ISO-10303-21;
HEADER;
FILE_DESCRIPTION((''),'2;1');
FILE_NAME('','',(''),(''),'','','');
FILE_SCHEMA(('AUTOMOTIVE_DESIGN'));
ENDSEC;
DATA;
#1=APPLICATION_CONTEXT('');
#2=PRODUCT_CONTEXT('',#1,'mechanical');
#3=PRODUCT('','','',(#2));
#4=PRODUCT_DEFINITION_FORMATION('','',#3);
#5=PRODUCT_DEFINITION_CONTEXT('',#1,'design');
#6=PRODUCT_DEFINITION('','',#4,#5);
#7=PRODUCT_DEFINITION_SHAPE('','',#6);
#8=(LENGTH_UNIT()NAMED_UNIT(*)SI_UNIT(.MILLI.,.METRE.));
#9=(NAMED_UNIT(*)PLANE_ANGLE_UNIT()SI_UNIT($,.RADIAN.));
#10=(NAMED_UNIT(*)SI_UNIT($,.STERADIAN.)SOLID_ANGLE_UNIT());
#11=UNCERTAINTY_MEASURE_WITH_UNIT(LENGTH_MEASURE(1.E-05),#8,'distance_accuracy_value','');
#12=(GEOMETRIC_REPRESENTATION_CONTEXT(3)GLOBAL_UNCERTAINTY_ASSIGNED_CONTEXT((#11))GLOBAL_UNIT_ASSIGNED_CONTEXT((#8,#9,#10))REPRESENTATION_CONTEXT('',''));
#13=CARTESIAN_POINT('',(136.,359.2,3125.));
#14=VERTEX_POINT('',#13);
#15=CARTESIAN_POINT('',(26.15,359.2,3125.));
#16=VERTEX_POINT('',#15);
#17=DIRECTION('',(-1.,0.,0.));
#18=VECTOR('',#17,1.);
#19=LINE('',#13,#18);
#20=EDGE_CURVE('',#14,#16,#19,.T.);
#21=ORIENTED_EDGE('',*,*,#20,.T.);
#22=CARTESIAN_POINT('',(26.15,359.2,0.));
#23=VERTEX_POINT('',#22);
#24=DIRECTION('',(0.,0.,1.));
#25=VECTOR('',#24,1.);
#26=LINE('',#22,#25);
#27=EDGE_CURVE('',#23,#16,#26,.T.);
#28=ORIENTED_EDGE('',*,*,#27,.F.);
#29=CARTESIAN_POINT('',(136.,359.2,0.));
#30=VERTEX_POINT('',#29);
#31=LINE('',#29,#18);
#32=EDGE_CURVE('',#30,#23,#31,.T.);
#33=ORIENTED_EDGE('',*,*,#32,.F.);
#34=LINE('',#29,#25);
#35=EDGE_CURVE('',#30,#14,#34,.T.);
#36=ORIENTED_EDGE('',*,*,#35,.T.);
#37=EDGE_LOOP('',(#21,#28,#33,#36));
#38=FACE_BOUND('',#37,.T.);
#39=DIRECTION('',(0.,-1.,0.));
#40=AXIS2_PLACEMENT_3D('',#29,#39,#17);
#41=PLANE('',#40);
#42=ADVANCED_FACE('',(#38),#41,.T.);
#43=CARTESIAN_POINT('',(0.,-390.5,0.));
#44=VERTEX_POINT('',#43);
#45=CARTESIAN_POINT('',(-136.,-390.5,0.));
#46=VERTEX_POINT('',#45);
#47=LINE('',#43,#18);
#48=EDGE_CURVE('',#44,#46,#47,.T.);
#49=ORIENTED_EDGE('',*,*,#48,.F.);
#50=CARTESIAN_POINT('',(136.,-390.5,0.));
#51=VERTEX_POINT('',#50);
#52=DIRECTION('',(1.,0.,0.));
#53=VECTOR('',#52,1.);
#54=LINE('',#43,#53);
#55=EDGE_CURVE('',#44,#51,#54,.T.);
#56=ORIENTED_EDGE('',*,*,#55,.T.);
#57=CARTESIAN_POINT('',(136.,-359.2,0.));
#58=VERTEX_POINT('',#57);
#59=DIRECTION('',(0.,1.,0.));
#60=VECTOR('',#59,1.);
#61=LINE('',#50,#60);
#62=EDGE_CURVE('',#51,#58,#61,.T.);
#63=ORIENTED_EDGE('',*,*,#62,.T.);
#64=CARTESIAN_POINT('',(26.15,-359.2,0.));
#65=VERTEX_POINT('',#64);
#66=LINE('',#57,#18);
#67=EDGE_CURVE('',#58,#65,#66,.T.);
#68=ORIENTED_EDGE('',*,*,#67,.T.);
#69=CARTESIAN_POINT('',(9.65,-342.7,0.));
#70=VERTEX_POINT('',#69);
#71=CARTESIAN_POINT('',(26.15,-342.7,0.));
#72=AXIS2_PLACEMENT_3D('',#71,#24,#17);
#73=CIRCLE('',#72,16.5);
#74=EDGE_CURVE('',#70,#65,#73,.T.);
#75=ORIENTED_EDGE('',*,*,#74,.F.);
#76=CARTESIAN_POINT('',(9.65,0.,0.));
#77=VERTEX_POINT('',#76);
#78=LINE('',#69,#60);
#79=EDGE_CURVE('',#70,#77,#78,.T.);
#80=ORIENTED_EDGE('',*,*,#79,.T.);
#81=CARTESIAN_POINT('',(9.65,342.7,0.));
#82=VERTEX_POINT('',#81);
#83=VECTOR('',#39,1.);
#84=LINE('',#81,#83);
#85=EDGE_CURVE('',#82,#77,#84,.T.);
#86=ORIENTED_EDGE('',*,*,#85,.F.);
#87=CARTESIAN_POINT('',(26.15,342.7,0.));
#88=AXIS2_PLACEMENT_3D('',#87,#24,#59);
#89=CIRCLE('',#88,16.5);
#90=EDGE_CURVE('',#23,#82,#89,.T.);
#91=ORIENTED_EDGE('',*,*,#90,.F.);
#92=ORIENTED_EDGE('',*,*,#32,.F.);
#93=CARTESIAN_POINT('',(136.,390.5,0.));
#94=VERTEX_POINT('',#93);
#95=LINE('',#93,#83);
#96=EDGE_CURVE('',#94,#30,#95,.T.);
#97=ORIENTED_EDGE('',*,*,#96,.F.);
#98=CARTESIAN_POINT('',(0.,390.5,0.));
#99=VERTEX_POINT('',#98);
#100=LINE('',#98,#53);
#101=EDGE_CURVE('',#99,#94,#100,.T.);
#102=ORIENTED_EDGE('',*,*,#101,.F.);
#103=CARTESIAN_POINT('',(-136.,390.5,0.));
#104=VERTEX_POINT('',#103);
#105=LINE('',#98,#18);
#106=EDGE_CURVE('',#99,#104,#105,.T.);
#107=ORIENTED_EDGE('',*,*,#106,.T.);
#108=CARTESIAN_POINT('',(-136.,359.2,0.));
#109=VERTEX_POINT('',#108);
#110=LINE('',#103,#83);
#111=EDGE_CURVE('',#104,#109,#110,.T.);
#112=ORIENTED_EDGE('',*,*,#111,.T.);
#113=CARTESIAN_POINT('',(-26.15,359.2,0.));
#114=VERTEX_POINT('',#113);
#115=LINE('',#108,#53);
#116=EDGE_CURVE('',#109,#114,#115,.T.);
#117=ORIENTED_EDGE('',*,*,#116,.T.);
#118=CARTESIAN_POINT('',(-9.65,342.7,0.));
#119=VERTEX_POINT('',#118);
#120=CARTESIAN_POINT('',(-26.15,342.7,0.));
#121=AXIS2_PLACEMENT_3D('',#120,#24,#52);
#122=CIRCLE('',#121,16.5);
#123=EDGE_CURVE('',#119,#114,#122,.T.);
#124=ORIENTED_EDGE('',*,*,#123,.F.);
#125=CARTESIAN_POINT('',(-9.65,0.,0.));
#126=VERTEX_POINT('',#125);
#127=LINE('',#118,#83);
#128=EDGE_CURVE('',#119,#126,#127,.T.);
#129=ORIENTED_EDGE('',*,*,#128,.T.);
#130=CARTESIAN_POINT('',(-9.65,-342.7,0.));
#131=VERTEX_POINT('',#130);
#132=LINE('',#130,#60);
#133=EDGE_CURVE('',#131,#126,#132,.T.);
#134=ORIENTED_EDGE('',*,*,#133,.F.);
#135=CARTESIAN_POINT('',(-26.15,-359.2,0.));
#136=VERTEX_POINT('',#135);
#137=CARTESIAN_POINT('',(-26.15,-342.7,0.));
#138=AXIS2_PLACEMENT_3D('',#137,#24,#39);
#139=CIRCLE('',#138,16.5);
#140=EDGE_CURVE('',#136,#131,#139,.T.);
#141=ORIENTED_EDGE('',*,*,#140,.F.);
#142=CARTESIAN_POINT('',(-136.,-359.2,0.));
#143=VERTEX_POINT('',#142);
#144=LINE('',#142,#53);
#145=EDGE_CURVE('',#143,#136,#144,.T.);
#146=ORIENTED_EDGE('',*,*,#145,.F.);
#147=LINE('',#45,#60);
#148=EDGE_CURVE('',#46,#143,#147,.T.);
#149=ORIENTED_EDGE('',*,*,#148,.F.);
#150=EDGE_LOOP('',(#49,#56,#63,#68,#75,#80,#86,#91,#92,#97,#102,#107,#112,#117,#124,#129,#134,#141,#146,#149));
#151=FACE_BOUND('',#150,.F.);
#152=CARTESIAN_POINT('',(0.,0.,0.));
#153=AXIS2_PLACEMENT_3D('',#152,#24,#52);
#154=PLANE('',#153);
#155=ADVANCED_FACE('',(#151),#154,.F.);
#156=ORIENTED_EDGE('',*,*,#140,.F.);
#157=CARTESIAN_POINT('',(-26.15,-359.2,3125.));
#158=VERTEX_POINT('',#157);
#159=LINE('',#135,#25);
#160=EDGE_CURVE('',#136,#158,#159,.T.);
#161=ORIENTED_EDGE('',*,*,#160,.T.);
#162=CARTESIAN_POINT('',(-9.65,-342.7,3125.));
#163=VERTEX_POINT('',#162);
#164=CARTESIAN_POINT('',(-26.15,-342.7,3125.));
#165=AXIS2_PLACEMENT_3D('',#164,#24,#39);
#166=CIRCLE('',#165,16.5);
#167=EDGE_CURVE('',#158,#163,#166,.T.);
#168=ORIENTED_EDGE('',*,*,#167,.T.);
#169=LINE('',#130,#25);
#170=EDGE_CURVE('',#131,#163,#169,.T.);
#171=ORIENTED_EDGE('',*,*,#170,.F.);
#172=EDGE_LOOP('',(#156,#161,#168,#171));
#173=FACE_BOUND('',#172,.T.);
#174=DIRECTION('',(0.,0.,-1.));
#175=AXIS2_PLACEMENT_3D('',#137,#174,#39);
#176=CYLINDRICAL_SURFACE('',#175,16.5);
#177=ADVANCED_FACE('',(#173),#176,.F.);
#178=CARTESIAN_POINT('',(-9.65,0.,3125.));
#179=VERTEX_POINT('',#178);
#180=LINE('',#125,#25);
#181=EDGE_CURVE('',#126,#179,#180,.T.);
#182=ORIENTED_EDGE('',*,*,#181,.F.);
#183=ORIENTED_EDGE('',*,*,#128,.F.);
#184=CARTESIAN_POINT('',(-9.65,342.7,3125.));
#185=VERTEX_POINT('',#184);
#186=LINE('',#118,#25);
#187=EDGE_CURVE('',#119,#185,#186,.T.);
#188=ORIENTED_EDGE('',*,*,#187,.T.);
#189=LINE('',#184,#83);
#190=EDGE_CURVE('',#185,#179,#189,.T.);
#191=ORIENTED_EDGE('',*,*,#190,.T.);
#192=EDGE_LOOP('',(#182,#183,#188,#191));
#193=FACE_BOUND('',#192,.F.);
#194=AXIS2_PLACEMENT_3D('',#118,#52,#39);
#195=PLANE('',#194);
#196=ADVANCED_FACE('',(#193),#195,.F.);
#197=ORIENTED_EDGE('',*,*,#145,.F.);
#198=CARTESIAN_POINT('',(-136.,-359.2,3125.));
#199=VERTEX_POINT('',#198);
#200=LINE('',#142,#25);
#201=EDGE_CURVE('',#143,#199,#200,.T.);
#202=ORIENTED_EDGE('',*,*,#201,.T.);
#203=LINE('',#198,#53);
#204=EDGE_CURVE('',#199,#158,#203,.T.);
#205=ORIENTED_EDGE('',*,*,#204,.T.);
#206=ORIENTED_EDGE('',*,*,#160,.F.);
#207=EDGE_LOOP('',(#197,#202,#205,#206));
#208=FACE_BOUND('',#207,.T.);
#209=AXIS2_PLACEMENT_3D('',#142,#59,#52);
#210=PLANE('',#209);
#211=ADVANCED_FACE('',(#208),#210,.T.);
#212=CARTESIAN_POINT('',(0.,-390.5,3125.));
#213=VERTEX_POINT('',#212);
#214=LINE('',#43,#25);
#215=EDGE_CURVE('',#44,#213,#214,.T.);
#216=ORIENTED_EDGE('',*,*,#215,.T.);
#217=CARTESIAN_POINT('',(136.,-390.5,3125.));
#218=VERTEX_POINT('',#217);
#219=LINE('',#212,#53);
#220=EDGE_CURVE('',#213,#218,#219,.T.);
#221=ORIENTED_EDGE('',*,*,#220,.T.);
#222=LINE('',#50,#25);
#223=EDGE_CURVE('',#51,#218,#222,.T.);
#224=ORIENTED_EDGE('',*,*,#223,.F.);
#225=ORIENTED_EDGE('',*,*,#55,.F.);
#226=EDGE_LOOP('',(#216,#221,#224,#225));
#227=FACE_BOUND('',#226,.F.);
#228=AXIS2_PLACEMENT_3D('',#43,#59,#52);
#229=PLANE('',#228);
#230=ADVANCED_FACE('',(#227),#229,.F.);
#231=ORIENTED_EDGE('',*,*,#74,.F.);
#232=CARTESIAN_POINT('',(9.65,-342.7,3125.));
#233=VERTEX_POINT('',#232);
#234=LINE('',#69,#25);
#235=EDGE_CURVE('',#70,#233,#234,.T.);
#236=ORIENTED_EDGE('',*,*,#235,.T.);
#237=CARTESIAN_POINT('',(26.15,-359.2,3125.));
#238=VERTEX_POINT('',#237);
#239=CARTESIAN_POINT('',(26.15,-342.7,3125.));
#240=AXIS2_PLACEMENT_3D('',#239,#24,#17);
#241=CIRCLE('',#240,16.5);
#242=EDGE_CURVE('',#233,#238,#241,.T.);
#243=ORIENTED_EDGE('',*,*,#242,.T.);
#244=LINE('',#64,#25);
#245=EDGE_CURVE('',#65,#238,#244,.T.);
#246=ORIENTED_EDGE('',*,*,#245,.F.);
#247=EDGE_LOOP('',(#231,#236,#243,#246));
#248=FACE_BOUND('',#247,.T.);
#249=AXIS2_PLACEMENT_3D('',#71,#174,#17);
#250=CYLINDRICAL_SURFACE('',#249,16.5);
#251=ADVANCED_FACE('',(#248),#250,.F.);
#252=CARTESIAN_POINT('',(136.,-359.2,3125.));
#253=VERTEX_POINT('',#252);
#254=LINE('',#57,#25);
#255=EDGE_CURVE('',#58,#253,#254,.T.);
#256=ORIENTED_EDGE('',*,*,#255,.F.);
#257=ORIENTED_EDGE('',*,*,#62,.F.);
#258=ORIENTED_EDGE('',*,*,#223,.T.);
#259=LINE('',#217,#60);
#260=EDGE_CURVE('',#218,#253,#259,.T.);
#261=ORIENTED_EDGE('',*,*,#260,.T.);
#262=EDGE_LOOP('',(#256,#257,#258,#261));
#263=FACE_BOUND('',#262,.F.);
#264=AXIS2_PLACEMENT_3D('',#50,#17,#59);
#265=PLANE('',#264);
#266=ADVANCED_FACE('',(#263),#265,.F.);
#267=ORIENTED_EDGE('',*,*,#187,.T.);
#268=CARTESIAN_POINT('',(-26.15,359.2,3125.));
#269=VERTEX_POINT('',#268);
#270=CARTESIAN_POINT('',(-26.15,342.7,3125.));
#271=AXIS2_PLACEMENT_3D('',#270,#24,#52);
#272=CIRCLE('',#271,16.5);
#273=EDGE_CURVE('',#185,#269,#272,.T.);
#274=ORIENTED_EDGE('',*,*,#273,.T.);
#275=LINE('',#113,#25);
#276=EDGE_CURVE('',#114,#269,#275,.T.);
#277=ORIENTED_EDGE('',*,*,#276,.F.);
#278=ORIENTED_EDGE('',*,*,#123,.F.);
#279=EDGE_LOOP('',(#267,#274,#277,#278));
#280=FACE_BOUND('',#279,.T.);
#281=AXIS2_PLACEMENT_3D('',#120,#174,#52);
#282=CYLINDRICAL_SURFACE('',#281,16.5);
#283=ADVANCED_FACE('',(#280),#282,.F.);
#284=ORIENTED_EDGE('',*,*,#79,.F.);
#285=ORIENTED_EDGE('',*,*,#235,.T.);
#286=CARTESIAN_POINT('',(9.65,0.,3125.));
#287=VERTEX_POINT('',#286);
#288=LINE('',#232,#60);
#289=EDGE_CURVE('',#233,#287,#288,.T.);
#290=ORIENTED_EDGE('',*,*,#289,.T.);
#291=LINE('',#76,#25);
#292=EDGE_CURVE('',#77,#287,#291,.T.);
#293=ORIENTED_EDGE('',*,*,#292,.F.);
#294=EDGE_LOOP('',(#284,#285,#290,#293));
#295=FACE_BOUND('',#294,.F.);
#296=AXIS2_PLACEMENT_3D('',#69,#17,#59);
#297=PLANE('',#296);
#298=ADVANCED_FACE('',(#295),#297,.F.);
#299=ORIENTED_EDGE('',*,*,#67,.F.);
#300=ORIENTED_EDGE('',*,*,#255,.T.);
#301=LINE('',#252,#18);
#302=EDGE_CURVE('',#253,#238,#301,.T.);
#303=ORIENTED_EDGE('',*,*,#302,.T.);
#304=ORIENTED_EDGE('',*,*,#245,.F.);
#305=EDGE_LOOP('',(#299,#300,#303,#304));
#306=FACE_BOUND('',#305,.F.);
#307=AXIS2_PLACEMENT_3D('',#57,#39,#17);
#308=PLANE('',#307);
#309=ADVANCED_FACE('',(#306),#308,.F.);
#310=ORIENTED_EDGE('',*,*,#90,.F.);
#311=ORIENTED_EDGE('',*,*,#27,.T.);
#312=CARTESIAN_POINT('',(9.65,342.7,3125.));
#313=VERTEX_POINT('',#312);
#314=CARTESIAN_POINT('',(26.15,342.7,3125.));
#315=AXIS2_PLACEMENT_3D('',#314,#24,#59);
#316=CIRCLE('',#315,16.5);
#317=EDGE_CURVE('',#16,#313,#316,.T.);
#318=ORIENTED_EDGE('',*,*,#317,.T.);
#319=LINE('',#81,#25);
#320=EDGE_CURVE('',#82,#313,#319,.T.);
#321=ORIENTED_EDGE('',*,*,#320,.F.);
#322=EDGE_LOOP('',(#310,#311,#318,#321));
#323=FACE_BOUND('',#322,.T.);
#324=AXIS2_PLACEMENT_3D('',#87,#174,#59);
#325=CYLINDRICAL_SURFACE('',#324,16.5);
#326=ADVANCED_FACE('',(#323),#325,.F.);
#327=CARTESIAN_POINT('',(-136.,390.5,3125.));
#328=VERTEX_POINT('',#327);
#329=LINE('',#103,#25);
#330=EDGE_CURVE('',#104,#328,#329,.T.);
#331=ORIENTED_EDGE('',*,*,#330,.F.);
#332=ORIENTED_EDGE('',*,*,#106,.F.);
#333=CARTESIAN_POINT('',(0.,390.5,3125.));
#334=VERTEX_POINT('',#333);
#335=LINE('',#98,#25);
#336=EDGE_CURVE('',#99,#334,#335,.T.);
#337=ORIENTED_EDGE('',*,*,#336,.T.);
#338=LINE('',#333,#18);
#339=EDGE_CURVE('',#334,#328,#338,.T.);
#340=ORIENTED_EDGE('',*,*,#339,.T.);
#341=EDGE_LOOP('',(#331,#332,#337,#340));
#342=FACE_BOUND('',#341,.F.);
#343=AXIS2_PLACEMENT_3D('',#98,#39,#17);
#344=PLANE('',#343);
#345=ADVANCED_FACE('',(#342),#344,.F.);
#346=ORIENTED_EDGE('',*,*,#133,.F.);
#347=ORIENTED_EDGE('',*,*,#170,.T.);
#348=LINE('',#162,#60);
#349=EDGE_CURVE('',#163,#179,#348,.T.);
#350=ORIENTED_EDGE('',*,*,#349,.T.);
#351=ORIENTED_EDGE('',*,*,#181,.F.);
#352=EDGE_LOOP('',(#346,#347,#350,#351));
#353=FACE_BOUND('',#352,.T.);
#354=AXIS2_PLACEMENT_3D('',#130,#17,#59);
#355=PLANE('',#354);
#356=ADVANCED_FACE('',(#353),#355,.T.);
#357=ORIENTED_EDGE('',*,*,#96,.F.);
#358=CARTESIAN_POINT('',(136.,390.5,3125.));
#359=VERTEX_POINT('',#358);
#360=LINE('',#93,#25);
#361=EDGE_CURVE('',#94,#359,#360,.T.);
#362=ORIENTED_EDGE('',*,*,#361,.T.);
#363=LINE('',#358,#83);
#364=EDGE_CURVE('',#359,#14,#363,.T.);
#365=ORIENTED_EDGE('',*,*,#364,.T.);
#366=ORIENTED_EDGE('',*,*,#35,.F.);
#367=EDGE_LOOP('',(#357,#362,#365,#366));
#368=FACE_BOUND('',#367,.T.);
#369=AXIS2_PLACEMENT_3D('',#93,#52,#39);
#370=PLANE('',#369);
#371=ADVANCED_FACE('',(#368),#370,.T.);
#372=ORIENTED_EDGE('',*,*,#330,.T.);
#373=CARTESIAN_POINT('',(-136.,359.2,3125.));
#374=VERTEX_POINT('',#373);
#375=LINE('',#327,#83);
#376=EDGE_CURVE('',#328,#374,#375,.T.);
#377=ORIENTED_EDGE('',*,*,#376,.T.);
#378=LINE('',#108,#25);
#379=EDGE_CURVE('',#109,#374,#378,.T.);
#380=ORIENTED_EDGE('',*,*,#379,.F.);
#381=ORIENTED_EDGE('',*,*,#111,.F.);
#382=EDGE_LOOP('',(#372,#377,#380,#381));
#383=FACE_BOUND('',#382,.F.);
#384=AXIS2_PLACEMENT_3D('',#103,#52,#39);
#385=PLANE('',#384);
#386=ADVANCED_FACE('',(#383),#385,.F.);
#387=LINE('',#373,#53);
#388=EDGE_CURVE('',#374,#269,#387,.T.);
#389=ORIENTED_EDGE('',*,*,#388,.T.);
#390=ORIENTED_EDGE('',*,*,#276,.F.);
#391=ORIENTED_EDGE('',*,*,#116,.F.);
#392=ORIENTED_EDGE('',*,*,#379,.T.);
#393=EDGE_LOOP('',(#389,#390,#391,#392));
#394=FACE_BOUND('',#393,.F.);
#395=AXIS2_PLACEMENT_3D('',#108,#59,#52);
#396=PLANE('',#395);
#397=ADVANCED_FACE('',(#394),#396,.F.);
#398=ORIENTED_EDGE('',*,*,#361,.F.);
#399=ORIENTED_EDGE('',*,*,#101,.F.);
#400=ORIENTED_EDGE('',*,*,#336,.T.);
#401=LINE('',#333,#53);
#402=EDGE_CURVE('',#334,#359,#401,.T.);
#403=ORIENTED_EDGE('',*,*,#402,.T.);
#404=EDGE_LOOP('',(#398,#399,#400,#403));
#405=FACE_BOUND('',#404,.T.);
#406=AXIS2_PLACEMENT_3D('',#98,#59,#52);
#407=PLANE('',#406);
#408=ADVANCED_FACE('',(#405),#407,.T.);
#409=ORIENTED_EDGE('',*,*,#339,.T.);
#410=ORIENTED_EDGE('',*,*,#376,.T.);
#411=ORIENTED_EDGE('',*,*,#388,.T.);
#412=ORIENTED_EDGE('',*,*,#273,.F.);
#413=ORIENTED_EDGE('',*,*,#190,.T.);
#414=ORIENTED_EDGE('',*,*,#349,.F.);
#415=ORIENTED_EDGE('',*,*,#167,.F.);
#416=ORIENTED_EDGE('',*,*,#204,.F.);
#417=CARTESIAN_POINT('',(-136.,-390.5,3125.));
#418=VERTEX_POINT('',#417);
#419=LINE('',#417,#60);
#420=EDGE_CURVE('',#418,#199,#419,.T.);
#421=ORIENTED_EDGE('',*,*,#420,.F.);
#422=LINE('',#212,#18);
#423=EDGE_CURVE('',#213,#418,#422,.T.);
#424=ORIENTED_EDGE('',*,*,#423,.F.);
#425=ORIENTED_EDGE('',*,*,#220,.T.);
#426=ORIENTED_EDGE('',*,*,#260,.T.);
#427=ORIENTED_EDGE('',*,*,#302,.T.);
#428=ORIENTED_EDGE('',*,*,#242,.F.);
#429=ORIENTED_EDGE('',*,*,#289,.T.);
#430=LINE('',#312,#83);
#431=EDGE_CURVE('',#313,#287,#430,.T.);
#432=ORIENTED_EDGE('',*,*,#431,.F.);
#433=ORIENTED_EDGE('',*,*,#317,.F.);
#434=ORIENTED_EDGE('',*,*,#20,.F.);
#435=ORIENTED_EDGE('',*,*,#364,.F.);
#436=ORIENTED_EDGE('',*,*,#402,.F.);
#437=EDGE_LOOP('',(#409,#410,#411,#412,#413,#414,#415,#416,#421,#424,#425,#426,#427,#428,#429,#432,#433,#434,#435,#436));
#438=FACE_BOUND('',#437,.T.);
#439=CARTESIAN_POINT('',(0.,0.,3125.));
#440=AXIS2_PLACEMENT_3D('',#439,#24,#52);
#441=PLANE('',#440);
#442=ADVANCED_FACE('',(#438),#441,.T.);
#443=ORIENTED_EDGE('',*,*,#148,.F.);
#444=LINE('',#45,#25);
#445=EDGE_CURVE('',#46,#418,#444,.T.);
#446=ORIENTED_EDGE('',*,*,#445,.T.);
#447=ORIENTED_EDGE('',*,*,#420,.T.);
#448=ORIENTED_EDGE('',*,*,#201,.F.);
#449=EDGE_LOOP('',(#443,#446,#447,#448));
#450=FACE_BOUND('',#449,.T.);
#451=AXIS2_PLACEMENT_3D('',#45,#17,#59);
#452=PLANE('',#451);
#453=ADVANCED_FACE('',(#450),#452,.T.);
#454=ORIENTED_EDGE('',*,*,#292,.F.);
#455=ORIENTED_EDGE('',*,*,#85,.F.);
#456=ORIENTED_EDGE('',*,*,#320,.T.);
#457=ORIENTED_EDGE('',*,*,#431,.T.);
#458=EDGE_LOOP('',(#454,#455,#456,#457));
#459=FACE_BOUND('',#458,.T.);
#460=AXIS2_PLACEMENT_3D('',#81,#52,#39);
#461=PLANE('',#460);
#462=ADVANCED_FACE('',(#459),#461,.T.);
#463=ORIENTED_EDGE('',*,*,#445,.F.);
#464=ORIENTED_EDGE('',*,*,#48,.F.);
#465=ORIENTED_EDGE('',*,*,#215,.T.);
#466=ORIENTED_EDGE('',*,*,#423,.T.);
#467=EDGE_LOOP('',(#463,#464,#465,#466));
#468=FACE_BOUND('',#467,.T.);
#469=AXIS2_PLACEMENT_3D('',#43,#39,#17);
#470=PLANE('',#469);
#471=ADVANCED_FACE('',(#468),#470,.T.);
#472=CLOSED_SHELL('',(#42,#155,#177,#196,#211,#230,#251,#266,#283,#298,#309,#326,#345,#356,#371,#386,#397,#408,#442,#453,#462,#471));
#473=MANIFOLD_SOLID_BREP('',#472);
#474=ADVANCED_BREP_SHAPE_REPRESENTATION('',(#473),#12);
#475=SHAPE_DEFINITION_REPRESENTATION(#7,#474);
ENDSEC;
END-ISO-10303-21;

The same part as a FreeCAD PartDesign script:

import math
import FreeCAD as App
import Part
import Sketcher
Q = App.Units.Quantity

doc = App.newDocument("Part")
params = doc.addObject("Spreadsheet::Sheet", "Params")
for row, (alias, value) in enumerate([
    ("sketch1_radius", "16.5 mm"),
    ("sketch1_height", "31.3 mm"),
    ("pad1_length", "3125 mm"),
], start=1):
    params.set(f"A{row}", alias)
    params.set(f"B{row}", "=" + value)
    params.setAlias(f"B{row}", alias)

body = doc.addObject("PartDesign::Body", "Body")

# Sketch on XY plane
sketch1 = body.newObject("Sketcher::SketchObject", "Sketch")
sketch1.AttachmentSupport = (doc.getObject("XY_Plane"), [""])
sketch1.MapMode = "FlatFace"
sketch1.addGeometry([
    Part.LineSegment(App.Vector(-136, -359, 0), App.Vector(-136, -390, 0)),  # 0
    Part.LineSegment(App.Vector(-136, -390, 0), App.Vector(136, -390, 0)),  # 1
    Part.LineSegment(App.Vector(136, -390, 0), App.Vector(136, -359, 0)),  # 2
    Part.LineSegment(App.Vector(136, -359, 0), App.Vector(26, -359, 0)),  # 3
    Part.ArcOfCircle(Part.Circle(App.Vector(26, -343, 0), App.Vector(0, 0, 1), 16), math.radians(180), math.radians(270)),  # 4
    Part.LineSegment(App.Vector(10, -343, 0), App.Vector(10, 343, 0)),  # 5
    Part.ArcOfCircle(Part.Circle(App.Vector(26, 343, 0), App.Vector(0, 0, 1), 16), math.radians(90), math.radians(180)),  # 6
    Part.LineSegment(App.Vector(26, 359, 0), App.Vector(136, 359, 0)),  # 7
    Part.LineSegment(App.Vector(136, 359, 0), App.Vector(136, 390, 0)),  # 8
    Part.LineSegment(App.Vector(136, 390, 0), App.Vector(-136, 390, 0)),  # 9
    Part.LineSegment(App.Vector(-136, 390, 0), App.Vector(-136, 359, 0)),  # 10
    Part.LineSegment(App.Vector(-136, 359, 0), App.Vector(-26, 359, 0)),  # 11
    Part.ArcOfCircle(Part.Circle(App.Vector(-26, 343, 0), App.Vector(0, 0, 1), 16), math.radians(0), math.radians(90)),  # 12
    Part.LineSegment(App.Vector(-10, 343, 0), App.Vector(-10, -343, 0)),  # 13
    Part.ArcOfCircle(Part.Circle(App.Vector(-26, -343, 0), App.Vector(0, 0, 1), 16), math.radians(-90), math.radians(0)),  # 14
    Part.LineSegment(App.Vector(-26, -359, 0), App.Vector(-136, -359, 0)),  # 15
], False)
sketch1.addConstraint([
    Sketcher.Constraint("Coincident", 0, 2, 1, 1),
    Sketcher.Constraint("Coincident", 1, 2, 2, 1),
    Sketcher.Constraint("Coincident", 2, 2, 3, 1),
    Sketcher.Constraint("Tangent", 3, 2, 4, 2),
    Sketcher.Constraint("Tangent", 4, 1, 5, 1),
    Sketcher.Constraint("Tangent", 5, 2, 6, 2),
    Sketcher.Constraint("Tangent", 6, 1, 7, 1),
    Sketcher.Constraint("Coincident", 7, 2, 8, 1),
    Sketcher.Constraint("Coincident", 8, 2, 9, 1),
    Sketcher.Constraint("Coincident", 9, 2, 10, 1),
    Sketcher.Constraint("Coincident", 10, 2, 11, 1),
    Sketcher.Constraint("Tangent", 11, 2, 12, 2),
    Sketcher.Constraint("Tangent", 12, 1, 13, 1),
    Sketcher.Constraint("Tangent", 13, 2, 14, 2),
    Sketcher.Constraint("Tangent", 14, 1, 15, 1),
    Sketcher.Constraint("Coincident", 15, 2, 0, 1),
    Sketcher.Constraint("Vertical", 0),
    Sketcher.Constraint("Horizontal", 1),
    Sketcher.Constraint("Vertical", 2),
    Sketcher.Constraint("Horizontal", 3),
    Sketcher.Constraint("Vertical", 5),
    Sketcher.Constraint("Horizontal", 7),
    Sketcher.Constraint("Vertical", 8),
    Sketcher.Constraint("Horizontal", 9),
    Sketcher.Constraint("Vertical", 10),
    Sketcher.Constraint("Horizontal", 11),
    Sketcher.Constraint("Vertical", 13),
    Sketcher.Constraint("Horizontal", 15),
    Sketcher.Constraint("Equal", 4, 6),
    Sketcher.Constraint("Equal", 6, 12),
    Sketcher.Constraint("Equal", 12, 14),
    Sketcher.Constraint("Symmetric", 4, 3, 12, 3, -1, 1),
    Sketcher.Constraint("Symmetric", 0, 2, 8, 2, -1, 1),
    Sketcher.Constraint("Symmetric", 7, 2, 10, 2, -2),
    Sketcher.Constraint("Symmetric", 2, 2, 15, 2, -2),
    Sketcher.Constraint("Radius", 4, Q("16.5 mm")),
    Sketcher.Constraint("DistanceY", 0, 2, 0, 1, Q("31.3 mm")),
    Sketcher.Constraint("DistanceX", 0, 2, -1, 1, Q("136 mm")),
    Sketcher.Constraint("DistanceY", 0, 2, -1, 1, Q("390.5 mm")),
    Sketcher.Constraint("DistanceX", -1, 1, 4, 1, Q("9.65 mm")),
])
sketch1.setExpression("Constraints[35]", "Params.sketch1_radius")
sketch1.setExpression("Constraints[36]", "Params.sketch1_height")
pad1 = body.newObject("PartDesign::Pad", "Pad")
pad1.Profile = sketch1
pad1.setExpression("Length", "Params.pad1_length")

doc.recompute()
